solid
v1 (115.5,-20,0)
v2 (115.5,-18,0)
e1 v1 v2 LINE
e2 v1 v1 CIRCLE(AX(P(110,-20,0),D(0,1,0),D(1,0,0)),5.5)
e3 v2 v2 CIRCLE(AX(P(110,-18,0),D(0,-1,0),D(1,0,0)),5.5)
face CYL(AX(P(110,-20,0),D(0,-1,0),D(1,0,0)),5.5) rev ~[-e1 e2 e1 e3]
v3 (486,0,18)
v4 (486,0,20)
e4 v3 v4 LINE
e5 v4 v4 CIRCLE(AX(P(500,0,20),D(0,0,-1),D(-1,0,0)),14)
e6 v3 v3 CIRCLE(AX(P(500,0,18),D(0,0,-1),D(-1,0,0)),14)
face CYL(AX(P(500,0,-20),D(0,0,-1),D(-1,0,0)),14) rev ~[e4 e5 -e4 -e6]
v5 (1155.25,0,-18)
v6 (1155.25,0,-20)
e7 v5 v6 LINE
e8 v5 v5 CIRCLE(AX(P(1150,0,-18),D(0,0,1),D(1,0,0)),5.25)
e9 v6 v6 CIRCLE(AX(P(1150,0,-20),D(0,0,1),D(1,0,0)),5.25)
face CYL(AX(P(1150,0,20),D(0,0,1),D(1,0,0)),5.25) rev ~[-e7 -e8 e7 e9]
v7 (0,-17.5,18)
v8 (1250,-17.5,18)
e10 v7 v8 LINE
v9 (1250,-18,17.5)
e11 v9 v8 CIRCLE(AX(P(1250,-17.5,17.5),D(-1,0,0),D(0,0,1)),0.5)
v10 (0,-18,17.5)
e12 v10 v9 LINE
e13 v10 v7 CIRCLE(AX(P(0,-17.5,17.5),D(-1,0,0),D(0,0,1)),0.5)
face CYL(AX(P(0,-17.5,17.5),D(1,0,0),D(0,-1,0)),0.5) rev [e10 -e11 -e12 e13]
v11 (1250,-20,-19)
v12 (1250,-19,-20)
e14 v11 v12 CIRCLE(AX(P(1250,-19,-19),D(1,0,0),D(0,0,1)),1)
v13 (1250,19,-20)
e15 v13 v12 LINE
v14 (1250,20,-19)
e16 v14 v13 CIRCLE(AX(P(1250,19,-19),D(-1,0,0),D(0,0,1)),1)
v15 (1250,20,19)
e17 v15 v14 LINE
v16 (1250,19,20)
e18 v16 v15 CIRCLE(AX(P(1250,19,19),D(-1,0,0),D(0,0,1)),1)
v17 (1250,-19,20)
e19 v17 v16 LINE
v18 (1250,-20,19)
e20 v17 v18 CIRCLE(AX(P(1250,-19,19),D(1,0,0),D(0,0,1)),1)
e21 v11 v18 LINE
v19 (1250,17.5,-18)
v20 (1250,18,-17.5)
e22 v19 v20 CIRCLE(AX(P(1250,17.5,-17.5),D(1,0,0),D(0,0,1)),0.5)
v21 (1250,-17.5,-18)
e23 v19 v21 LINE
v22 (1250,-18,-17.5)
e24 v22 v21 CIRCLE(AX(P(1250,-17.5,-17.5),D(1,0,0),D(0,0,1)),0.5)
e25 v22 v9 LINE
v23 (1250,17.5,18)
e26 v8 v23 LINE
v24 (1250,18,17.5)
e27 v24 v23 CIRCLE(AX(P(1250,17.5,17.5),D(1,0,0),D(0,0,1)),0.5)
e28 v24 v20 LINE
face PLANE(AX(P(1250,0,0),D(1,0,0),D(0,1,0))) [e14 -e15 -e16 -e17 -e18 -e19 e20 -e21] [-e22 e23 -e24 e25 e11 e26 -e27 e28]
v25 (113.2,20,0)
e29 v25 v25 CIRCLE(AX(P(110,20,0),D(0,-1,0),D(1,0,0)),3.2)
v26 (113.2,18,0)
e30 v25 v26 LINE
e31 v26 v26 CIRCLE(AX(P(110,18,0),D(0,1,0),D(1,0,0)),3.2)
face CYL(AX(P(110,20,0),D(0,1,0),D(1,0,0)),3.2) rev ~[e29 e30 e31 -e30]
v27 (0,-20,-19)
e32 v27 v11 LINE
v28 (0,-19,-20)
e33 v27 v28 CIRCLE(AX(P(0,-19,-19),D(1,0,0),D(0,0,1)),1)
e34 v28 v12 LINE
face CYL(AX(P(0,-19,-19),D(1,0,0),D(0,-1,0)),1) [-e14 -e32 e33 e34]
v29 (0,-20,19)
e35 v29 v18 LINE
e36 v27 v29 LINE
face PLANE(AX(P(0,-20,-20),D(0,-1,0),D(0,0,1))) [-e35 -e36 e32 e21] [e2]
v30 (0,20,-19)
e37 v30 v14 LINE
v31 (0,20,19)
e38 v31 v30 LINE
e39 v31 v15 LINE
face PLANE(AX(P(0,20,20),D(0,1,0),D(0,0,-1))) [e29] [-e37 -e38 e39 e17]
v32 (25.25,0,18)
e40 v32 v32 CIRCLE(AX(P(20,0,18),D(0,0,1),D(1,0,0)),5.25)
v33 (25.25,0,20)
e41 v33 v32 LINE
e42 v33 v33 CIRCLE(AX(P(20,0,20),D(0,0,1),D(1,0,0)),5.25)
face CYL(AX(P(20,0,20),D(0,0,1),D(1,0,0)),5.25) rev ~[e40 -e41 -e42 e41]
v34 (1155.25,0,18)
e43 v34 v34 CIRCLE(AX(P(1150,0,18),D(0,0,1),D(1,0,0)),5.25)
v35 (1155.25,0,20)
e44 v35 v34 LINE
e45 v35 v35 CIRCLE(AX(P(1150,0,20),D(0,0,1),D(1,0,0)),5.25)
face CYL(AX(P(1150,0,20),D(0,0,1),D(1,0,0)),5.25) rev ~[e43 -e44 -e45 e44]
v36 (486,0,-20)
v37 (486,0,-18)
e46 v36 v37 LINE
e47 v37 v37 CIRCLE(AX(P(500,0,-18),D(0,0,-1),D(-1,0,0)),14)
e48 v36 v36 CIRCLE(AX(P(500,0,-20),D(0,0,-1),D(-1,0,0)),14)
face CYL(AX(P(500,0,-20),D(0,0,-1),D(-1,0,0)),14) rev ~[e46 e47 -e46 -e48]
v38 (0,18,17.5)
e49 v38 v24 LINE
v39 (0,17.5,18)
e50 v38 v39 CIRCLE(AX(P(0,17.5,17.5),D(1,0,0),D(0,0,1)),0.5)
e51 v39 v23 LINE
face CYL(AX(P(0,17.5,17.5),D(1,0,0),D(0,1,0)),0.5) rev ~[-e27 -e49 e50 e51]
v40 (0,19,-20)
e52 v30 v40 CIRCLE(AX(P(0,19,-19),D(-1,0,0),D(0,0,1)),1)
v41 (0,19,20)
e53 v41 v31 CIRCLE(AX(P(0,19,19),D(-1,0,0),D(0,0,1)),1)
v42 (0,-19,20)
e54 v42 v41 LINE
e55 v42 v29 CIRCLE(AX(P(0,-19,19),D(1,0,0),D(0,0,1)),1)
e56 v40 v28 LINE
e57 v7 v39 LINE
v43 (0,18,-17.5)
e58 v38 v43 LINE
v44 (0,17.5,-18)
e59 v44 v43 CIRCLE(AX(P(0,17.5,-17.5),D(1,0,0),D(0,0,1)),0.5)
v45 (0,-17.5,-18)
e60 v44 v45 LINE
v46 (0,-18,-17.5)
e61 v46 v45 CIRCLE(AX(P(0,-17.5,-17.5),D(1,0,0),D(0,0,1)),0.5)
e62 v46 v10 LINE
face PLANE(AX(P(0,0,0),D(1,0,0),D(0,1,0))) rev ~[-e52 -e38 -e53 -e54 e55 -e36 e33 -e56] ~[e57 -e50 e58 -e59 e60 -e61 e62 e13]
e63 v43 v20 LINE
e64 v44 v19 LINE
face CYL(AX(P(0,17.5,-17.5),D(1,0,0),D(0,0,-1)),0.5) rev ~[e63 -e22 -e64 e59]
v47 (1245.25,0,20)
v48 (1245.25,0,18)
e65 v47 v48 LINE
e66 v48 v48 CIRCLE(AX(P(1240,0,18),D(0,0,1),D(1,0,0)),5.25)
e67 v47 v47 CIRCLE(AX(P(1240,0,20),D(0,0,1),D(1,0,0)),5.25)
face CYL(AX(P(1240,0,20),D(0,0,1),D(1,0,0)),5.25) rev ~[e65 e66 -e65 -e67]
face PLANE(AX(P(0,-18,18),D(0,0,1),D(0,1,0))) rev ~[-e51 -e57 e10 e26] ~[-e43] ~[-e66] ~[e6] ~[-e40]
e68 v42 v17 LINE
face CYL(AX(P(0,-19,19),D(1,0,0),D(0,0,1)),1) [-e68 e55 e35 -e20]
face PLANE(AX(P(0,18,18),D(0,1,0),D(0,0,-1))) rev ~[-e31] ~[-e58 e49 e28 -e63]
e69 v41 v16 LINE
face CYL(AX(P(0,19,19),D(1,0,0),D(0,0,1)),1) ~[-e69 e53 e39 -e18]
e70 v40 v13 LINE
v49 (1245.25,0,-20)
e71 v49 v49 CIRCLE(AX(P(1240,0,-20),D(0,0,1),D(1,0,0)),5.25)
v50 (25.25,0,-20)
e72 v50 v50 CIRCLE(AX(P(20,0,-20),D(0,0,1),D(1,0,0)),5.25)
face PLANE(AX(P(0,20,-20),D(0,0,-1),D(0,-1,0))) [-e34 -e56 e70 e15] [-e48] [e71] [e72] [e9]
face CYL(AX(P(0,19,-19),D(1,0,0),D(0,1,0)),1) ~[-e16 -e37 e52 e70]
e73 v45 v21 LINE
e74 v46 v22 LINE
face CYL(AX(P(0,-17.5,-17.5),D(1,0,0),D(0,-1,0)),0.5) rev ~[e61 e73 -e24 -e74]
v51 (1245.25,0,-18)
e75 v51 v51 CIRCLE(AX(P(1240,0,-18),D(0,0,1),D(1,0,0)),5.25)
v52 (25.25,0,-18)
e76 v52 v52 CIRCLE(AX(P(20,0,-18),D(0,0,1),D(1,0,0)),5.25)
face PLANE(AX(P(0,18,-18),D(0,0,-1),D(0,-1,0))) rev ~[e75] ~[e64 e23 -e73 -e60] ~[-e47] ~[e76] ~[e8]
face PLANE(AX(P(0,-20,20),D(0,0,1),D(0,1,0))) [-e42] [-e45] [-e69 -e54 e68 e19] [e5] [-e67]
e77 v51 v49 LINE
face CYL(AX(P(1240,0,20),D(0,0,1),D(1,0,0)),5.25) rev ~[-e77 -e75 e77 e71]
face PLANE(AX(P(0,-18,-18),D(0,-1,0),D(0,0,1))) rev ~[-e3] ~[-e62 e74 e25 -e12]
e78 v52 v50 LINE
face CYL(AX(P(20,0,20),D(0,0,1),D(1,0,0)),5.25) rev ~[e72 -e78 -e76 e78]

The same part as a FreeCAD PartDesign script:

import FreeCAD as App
import Part
import Sketcher
from FreeCAD import Vector


def edges_at(feature, points):
    """Names of the edges that pass closest to the given points."""
    edges = feature.Shape.Edges
    near = lambda p: min(range(len(edges)), key=lambda i: edges[i].distToShape(Part.Vertex(*p))[0])
    return sorted({f"Edge{near(p) + 1}" for p in points})


def add_polygon(sketch, points):
    """Adds a closed chain of lines whose ends are joined by coincident constraints."""
    first, n = sketch.GeometryCount, len(points)
    for a, b in zip(points, points[1:] + points[:1]):
        sketch.addGeometry(Part.LineSegment(App.Vector(*a, 0), App.Vector(*b, 0)), False)
    for i in range(n):
        sketch.addConstraint(Sketcher.Constraint("Coincident", first + i, 2, first + (i + 1) % n, 1))

doc = App.newDocument("Part")
body = doc.addObject("PartDesign::Body", "Body")

# Sketch on YZ plane
sketch1 = body.newObject("Sketcher::SketchObject", "Sketch")
sketch1.AttachmentSupport = (doc.getObject("YZ_Plane"), [""])
sketch1.MapMode = "FlatFace"
add_polygon(sketch1, [(20, 20), (-20, 20), (-20, -20), (20, -20)])  # lines 0-3
add_polygon(sketch1, [(-18, -18), (-18, 18), (18, 18), (18, -18)])  # lines 4-7
sketch1.addConstraint([
    Sketcher.Constraint("Horizontal", 0),
    Sketcher.Constraint("Vertical", 1),
    Sketcher.Constraint("Horizontal", 2),
    Sketcher.Constraint("Vertical", 3),
    Sketcher.Constraint("Vertical", 4),
    Sketcher.Constraint("Horizontal", 5),
    Sketcher.Constraint("Vertical", 6),
    Sketcher.Constraint("Horizontal", 7),
    Sketcher.Constraint("Symmetric", 0, 2, 2, 2, -1, 1),
    Sketcher.Constraint("Symmetric", 4, 2, 6, 2, -1, 1),
    Sketcher.Constraint("Equal", 2, 1),
    Sketcher.Constraint("Equal", 7, 4),
    Sketcher.Constraint("DistanceX", 0, 2, 0, 1, 40.0),
    Sketcher.Constraint("DistanceX", 5, 1, 5, 2, 36.0),
])
pad1 = body.newObject("PartDesign::Pad", "Pad")
pad1.Profile = sketch1
pad1.Length = 1250

# Sketch on XY plane
sketch2 = body.newObject("Sketcher::SketchObject", "Sketch001")
sketch2.AttachmentSupport = (doc.getObject("XY_Plane"), [""])
sketch2.MapMode = "FlatFace"
sketch2.AttachmentOffset = App.Placement(Vector(0, 0, 20), App.Rotation())
sketch2.addGeometry([
    Part.Circle(Vector(20, 0, 0), Vector(0, 0, 1), 5),
    Part.Circle(Vector(1150, 0, 0), Vector(0, 0, 1), 5),
], False)
sketch2.addConstraint([
    Sketcher.Constraint("Equal", 0, 1),
    Sketcher.Constraint("PointOnObject", 0, 3, -1),
    Sketcher.Constraint("PointOnObject", 1, 3, -1),
    Sketcher.Constraint("Diameter", 0, 10.5),
    Sketcher.Constraint("DistanceX", -1, 1, 0, 3, 20.0),
    Sketcher.Constraint("DistanceX", -1, 1, 1, 3, 1150.0),
])
pocket1 = body.newObject("PartDesign::Pocket", "Pocket")
pocket1.Profile = sketch2
pocket1.Length = 1250

# Sketch on XZ plane
sketch3 = body.newObject("Sketcher::SketchObject", "Sketch002")
sketch3.AttachmentSupport = (doc.getObject("XZ_Plane"), [""])
sketch3.MapMode = "FlatFace"
sketch3.AttachmentOffset = App.Placement(Vector(0, 0, -20), App.Rotation())
sketch3.addGeometry(Part.Circle(Vector(110, 0, 0), Vector(0, 0, 1), 3.2), False)
sketch3.addConstraint([
    Sketcher.Constraint("PointOnObject", 0, 3, -1),
    Sketcher.Constraint("Diameter", 0, 6.4),
    Sketcher.Constraint("DistanceX", -1, 1, 0, 3, 110.0),
])
pocket2 = body.newObject("PartDesign::Pocket", "Pocket001")
pocket2.Profile = sketch3
pocket2.Length = 5
pocket2.Reversed = True

# Sketch on XZ plane
sketch4 = body.newObject("Sketcher::SketchObject", "Sketch003")
sketch4.AttachmentSupport = (doc.getObject("XZ_Plane"), [""])
sketch4.MapMode = "FlatFace"
sketch4.AttachmentOffset = App.Placement(Vector(0, 0, 20), App.Rotation())
sketch4.addGeometry(Part.Circle(Vector(110, 0, 0), Vector(0, 0, 1), 6), False)
sketch4.addConstraint([
    Sketcher.Constraint("PointOnObject", 0, 3, -1),
    Sketcher.Constraint("Diameter", 0, 11.0),
    Sketcher.Constraint("DistanceX", -1, 1, 0, 3, 110.0),
])
pocket3 = body.newObject("PartDesign::Pocket", "Pocket002")
pocket3.Profile = sketch4
pocket3.Length = 5
doc.recompute()

fillet = body.newObject("PartDesign::Fillet", "Fillet")
fillet.Base = (pocket3, edges_at(pocket3, [
    (625, 20, -20),
    (625, -20, -20),
    (625, -20, 20),
    (625, 20, 20),
]))
fillet.Radius = 1
doc.recompute()

fillet2 = body.newObject("PartDesign::Fillet", "Fillet001")
fillet2.Base = (fillet, edges_at(fillet, [
    (625, -18, 18),
    (625, -18, -18),
    (625, 18, -18),
    (625, 18, 18),
]))
fillet2.Radius = 0.5

# Sketch on XY plane
sketch5 = body.newObject("Sketcher::SketchObject", "Sketch004")
sketch5.AttachmentSupport = (doc.getObject("XY_Plane"), [""])
sketch5.MapMode = "FlatFace"
sketch5.AttachmentOffset = App.Placement(Vector(0, 0, -20), App.Rotation())
sketch5.addGeometry(Part.Circle(Vector(500, 0, 0), Vector(0, 0, 1), 14), False)
sketch5.addConstraint([
    Sketcher.Constraint("PointOnObject", 0, 3, -1),
    Sketcher.Constraint("Diameter", 0, 28.0),
    Sketcher.Constraint("DistanceX", -1, 1, 0, 3, 500.0),
])
pocket4 = body.newObject("PartDesign::Pocket", "Pocket003")
pocket4.Profile = sketch5
pocket4.Length = 40
pocket4.Reversed = True

# Sketch on XY plane
sketch6 = body.newObject("Sketcher::SketchObject", "Sketch005")
sketch6.AttachmentSupport = (doc.getObject("XY_Plane"), [""])
sketch6.MapMode = "FlatFace"
sketch6.AttachmentOffset = App.Placement(Vector(0, 0, 20), App.Rotation())
sketch6.addGeometry(Part.Circle(Vector(1240, 0, 0), Vector(0, 0, 1), 5), False)
sketch6.addConstraint([
    Sketcher.Constraint("PointOnObject", 0, 3, -1),
    Sketcher.Constraint("Diameter", 0, 10.5),
    Sketcher.Constraint("DistanceX", -1, 1, 0, 3, 1240.0),
])
pocket5 = body.newObject("PartDesign::Pocket", "Pocket004")
pocket5.Profile = sketch6
pocket5.Type = "ThroughAll"

doc.recompute()
